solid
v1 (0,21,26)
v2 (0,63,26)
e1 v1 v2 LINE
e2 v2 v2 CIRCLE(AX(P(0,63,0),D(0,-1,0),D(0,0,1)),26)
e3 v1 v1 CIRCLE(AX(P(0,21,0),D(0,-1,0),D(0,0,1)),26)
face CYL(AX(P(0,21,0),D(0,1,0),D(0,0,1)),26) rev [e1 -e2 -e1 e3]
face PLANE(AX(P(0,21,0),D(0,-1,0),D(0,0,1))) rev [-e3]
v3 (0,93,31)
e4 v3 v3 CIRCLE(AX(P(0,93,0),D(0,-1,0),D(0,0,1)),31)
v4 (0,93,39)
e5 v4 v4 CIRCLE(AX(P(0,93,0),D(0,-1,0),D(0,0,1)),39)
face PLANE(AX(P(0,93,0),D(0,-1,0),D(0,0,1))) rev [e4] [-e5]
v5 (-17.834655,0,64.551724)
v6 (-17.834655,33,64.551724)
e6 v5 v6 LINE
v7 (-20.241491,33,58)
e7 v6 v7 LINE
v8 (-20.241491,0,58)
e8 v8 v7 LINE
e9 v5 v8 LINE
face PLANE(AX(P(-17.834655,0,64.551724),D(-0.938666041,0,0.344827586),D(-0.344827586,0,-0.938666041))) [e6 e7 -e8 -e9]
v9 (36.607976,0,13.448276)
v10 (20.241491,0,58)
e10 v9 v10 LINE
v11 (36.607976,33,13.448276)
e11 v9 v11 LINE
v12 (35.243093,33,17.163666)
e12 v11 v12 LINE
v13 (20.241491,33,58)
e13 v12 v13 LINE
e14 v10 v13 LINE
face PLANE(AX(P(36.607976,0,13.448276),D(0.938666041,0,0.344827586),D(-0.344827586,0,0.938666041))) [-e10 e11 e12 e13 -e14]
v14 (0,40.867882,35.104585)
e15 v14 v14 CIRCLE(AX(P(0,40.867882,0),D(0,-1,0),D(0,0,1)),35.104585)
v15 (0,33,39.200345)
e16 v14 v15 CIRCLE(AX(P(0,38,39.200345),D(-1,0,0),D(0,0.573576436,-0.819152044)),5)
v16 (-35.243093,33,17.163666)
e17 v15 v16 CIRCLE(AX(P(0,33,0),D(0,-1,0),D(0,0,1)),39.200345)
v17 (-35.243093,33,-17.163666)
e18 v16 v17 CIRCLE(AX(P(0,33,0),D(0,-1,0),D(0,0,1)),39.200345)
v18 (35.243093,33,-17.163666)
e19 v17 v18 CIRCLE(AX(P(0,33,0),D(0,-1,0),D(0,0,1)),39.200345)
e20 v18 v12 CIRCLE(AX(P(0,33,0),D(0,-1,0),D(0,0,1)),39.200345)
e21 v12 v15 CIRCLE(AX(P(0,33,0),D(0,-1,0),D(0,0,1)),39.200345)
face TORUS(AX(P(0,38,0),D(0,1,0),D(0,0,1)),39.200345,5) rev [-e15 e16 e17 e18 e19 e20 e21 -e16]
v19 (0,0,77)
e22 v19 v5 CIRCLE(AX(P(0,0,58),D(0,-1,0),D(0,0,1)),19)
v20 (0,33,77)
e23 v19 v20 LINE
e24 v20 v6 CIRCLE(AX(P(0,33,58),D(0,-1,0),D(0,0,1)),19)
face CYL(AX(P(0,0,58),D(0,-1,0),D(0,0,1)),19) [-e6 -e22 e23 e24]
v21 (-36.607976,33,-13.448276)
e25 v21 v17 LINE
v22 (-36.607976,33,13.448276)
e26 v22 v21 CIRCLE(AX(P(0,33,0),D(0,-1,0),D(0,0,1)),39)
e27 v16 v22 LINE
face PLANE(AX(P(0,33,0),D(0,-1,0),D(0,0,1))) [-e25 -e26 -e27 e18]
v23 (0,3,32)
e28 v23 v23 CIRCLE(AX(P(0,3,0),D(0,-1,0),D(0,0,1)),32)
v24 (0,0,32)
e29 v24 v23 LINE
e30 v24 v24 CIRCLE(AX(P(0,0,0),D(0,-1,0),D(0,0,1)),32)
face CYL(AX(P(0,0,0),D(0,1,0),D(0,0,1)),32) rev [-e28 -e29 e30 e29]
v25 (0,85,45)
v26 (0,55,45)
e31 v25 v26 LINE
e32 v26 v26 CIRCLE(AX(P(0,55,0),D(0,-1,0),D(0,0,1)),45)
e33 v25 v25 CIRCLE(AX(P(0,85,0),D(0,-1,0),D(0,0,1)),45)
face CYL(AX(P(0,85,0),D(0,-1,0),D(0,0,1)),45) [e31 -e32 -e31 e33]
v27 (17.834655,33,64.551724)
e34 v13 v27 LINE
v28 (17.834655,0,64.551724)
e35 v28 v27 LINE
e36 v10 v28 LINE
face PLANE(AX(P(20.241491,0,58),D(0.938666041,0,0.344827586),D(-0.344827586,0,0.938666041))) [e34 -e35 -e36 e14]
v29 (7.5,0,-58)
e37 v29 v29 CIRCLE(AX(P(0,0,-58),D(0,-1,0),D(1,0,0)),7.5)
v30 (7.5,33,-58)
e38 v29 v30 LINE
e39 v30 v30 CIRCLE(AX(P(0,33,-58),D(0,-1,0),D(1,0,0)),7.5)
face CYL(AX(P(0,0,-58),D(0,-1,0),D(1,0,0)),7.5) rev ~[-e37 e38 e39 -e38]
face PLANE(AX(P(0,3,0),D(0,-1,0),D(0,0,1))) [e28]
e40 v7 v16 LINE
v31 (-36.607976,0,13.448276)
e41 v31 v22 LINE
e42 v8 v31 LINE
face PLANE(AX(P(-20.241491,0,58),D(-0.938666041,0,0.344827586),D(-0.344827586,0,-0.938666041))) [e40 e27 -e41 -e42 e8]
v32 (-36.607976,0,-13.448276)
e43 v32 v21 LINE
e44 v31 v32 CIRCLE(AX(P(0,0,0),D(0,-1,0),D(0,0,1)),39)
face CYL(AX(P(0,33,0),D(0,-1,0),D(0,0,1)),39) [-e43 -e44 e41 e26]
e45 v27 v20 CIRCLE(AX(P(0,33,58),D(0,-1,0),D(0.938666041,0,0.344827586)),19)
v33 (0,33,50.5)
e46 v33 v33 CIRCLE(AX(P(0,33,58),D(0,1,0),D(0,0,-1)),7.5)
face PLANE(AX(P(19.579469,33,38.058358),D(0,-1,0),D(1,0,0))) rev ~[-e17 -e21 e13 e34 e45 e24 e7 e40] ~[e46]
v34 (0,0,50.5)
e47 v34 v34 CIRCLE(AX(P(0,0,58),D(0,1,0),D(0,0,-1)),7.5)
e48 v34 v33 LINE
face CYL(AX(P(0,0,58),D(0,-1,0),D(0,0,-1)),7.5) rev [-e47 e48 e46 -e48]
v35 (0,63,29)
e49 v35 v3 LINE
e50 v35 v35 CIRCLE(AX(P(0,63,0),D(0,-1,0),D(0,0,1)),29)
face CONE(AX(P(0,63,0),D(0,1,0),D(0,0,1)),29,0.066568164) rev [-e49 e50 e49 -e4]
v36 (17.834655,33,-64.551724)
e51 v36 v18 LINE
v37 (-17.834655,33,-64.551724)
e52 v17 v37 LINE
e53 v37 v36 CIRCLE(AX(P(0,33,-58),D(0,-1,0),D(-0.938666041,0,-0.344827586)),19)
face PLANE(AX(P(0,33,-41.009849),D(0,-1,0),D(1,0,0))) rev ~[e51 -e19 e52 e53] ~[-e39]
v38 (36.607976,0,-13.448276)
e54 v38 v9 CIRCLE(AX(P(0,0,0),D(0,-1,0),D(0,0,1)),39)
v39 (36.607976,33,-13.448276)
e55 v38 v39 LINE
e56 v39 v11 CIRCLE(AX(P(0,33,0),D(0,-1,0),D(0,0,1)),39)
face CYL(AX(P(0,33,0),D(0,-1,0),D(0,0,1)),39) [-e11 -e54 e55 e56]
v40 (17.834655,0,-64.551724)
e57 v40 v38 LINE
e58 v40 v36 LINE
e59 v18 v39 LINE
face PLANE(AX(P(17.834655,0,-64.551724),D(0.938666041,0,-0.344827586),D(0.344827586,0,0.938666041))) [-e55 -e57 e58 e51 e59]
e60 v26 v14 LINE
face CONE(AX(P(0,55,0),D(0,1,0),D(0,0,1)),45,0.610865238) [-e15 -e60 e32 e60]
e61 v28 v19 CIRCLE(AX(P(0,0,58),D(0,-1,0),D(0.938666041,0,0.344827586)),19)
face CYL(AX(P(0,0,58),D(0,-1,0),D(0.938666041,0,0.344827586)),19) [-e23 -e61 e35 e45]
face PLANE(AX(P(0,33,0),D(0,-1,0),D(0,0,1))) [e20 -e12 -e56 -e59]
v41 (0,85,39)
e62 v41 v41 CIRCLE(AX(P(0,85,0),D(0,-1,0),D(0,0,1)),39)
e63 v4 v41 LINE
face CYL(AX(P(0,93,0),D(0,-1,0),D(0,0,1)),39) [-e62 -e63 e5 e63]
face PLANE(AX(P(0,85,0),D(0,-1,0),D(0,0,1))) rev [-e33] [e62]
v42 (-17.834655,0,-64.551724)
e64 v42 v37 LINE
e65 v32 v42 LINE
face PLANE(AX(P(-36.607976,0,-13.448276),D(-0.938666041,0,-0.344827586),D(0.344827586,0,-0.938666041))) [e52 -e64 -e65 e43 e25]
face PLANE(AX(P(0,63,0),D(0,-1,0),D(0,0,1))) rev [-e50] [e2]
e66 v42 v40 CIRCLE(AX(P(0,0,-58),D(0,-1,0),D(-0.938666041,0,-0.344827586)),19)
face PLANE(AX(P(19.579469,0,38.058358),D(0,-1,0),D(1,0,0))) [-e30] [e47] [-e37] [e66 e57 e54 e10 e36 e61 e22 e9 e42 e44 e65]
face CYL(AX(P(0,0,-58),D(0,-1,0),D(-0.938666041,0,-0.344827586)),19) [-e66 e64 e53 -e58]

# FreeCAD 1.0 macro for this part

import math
import FreeCAD as App
import Part
import Sketcher
from FreeCAD import Vector
Q = App.Units.Quantity

doc = App.newDocument("Part")
body = doc.addObject("PartDesign::Body", "Body")

# Sketch on YZ plane
sketch1 = body.newObject("Sketcher::SketchObject", "Sketch")
sketch1.AttachmentSupport = (doc.getObject("YZ_Plane"), [""])
sketch1.MapMode = "FlatFace"
sketch1.addGeometry(Part.LineSegment(Vector(3, 0, 0), Vector(21, 0, 0)), False)
sketch1.addGeometry(Part.LineSegment(Vector(21, 0, 0), Vector(21, 26, 0)), False)
sketch1.addGeometry(Part.LineSegment(Vector(21, 26, 0), Vector(63, 26, 0)), False)
sketch1.addGeometry(Part.LineSegment(Vector(63, 26, 0), Vector(63, 29, 0)), False)
sketch1.addGeometry(Part.LineSegment(Vector(63, 29, 0), Vector(93, 31, 0)), False)
sketch1.addGeometry(Part.LineSegment(Vector(93, 31, 0), Vector(93, 39, 0)), False)
sketch1.addGeometry(Part.LineSegment(Vector(93, 39, 0), Vector(85, 39, 0)), False)
sketch1.addGeometry(Part.LineSegment(Vector(85, 39, 0), Vector(85, 45, 0)), False)
sketch1.addGeometry(Part.LineSegment(Vector(85, 45, 0), Vector(55, 45, 0)), False)
sketch1.addGeometry(Part.LineSegment(Vector(55, 45, 0), Vector(40.87, 35.1, 0)), False)
sketch1.addGeometry(Part.ArcOfCircle(Part.Circle(Vector(38, 39.2, 0), Vector(0, 0, 1), 5), math.radians(180), math.radians(305)), False)
sketch1.addGeometry(Part.LineSegment(Vector(33, 39.2, 0), Vector(33, 39, 0)), False)
sketch1.addGeometry(Part.LineSegment(Vector(33, 39, 0), Vector(0, 39, 0)), False)
sketch1.addGeometry(Part.LineSegment(Vector(0, 39, 0), Vector(0, 32, 0)), False)
sketch1.addGeometry(Part.LineSegment(Vector(0, 32, 0), Vector(3, 32, 0)), False)
sketch1.addGeometry(Part.LineSegment(Vector(3, 32, 0), Vector(3, 0, 0)), False)
sketch1.addConstraint(Sketcher.Constraint("Coincident", 0, 2, 1, 1))
sketch1.addConstraint(Sketcher.Constraint("Coincident", 1, 2, 2, 1))
sketch1.addConstraint(Sketcher.Constraint("Coincident", 2, 2, 3, 1))
sketch1.addConstraint(Sketcher.Constraint("Coincident", 3, 2, 4, 1))
sketch1.addConstraint(Sketcher.Constraint("Coincident", 4, 2, 5, 1))
sketch1.addConstraint(Sketcher.Constraint("Coincident", 5, 2, 6, 1))
sketch1.addConstraint(Sketcher.Constraint("Coincident", 6, 2, 7, 1))
sketch1.addConstraint(Sketcher.Constraint("Coincident", 7, 2, 8, 1))
sketch1.addConstraint(Sketcher.Constraint("Coincident", 8, 2, 9, 1))
sketch1.addConstraint(Sketcher.Constraint("Tangent", 9, 2, 10, 2))
sketch1.addConstraint(Sketcher.Constraint("Tangent", 10, 1, 11, 1))
sketch1.addConstraint(Sketcher.Constraint("Coincident", 11, 2, 12, 1))
sketch1.addConstraint(Sketcher.Constraint("Coincident", 12, 2, 13, 1))
sketch1.addConstraint(Sketcher.Constraint("Coincident", 13, 2, 14, 1))
sketch1.addConstraint(Sketcher.Constraint("Coincident", 14, 2, 15, 1))
sketch1.addConstraint(Sketcher.Constraint("Coincident", 15, 2, 0, 1))
sketch1.addConstraint(Sketcher.Constraint("Horizontal", 0))
sketch1.addConstraint(Sketcher.Constraint("Vertical", 1))
sketch1.addConstraint(Sketcher.Constraint("Horizontal", 2))
sketch1.addConstraint(Sketcher.Constraint("Vertical", 3))
sketch1.addConstraint(Sketcher.Constraint("Vertical", 5))
sketch1.addConstraint(Sketcher.Constraint("Horizontal", 6))
sketch1.addConstraint(Sketcher.Constraint("Vertical", 7))
sketch1.addConstraint(Sketcher.Constraint("Horizontal", 8))
sketch1.addConstraint(Sketcher.Constraint("Vertical", 11))
sketch1.addConstraint(Sketcher.Constraint("Horizontal", 12))
sketch1.addConstraint(Sketcher.Constraint("Vertical", 13))
sketch1.addConstraint(Sketcher.Constraint("Horizontal", 14))
sketch1.addConstraint(Sketcher.Constraint("Vertical", 15))
sketch1.addConstraint(Sketcher.Constraint("PointOnObject", 0, 2, -1))
sketch1.addConstraint(Sketcher.Constraint("PointOnObject", 12, 2, -2))
sketch1.addConstraint(Sketcher.Constraint("Horizontal", 6, 2, 11, 2))
sketch1.addConstraint(Sketcher.Constraint("Equal", 14, 3))
sketch1.addConstraint(Sketcher.Constraint("Equal", 6, 5))
sketch1.addConstraint(Sketcher.Constraint("Radius", 10, 5.0))
sketch1.addConstraint(Sketcher.Constraint("DistanceX", 0, 1, 0, 2, 18.0))
sketch1.addConstraint(Sketcher.Constraint("DistanceX", 2, 1, 2, 2, 42.0))
sketch1.addConstraint(Sketcher.Constraint("DistanceX", 6, 2, 6, 1, 8.0))
sketch1.addConstraint(Sketcher.Constraint("DistanceX", 8, 2, 8, 1, 30.0))
sketch1.addConstraint(Sketcher.Constraint("DistanceX", 12, 2, 12, 1, 33.0))
sketch1.addConstraint(Sketcher.Constraint("DistanceX", 14, 1, 14, 2, 3.0))
sketch1.addConstraint(Sketcher.Constraint("DistanceY", 1, 1, 1, 2, 26.0))
sketch1.addConstraint(Sketcher.Constraint("DistanceY", 7, 1, 7, 2, 6.0))
sketch1.addConstraint(Sketcher.Constraint("DistanceY", 13, 2, 13, 1, 7.0))
sketch1.addConstraint(Sketcher.Constraint("DistanceY", 15, 2, 15, 1, 32.0))
sketch1.addConstraint(Sketcher.Constraint("Angle", 9, Q("-145 deg")))
sketch1.addConstraint(Sketcher.Constraint("DistanceX", -1, 1, 4, 2, 93.0))
revolution = body.newObject("PartDesign::Revolution", "Revolution")
revolution.Profile = sketch1
revolution.ReferenceAxis = (sketch1, ["H_Axis"])
revolution.Angle = 360

# Sketch on XZ plane
sketch2 = body.newObject("Sketcher::SketchObject", "Sketch001")
sketch2.AttachmentSupport = (doc.getObject("XZ_Plane"), [""])
sketch2.MapMode = "FlatFace"
sketch2.addGeometry(Part.ArcOfCircle(Part.Circle(Vector(0, 0, 0), Vector(0, 0, 1), 39), math.radians(20), math.radians(90)), False)
sketch2.addGeometry(Part.LineSegment(Vector(37, 13, 0), Vector(20, 58, 0)), False)
sketch2.addGeometry(Part.LineSegment(Vector(20, 58, 0), Vector(18, 65, 0)), False)
sketch2.addGeometry(Part.ArcOfCircle(Part.Circle(Vector(0, 58, 0), Vector(0, 0, 1), 19), math.radians(20), math.radians(90)), False)
sketch2.addGeometry(Part.ArcOfCircle(Part.Circle(Vector(0, 58, 0), Vector(0, 0, 1), 19), math.radians(90), math.radians(160)), False)
sketch2.addGeometry(Part.LineSegment(Vector(-18, 65, 0), Vector(-20, 58, 0)), False)
sketch2.addGeometry(Part.LineSegment(Vector(-20, 58, 0), Vector(-37, 13, 0)), False)
sketch2.addGeometry(Part.ArcOfCircle(Part.Circle(Vector(0, 0, 0), Vector(0, 0, 1), 39), math.radians(90), math.radians(160)), False)
sketch2.addGeometry(Part.Circle(Vector(0, 58, 0), Vector(0, 0, 1), 8), False)
sketch2.addGeometry(Part.ArcOfCircle(Part.Circle(Vector(0, 0, 0), Vector(0, 0, 1), 39), math.radians(-160), math.radians(-20)), False)
sketch2.addGeometry(Part.LineSegment(Vector(-37, -13, 0), Vector(-18, -65, 0)), False)
sketch2.addGeometry(Part.ArcOfCircle(Part.Circle(Vector(0, -58, 0), Vector(0, 0, 1), 19), math.radians(-160), math.radians(-20)), False)
sketch2.addGeometry(Part.LineSegment(Vector(18, -65, 0), Vector(37, -13, 0)), False)
sketch2.addGeometry(Part.Circle(Vector(0, -58, 0), Vector(0, 0, 1), 8), False)
sketch2.addConstraint(Sketcher.Constraint("Tangent", 0, 1, 1, 1))
sketch2.addConstraint(Sketcher.Constraint("Coincident", 1, 2, 2, 1))
sketch2.addConstraint(Sketcher.Constraint("Tangent", 2, 2, 3, 1))
sketch2.addConstraint(Sketcher.Constraint("Tangent", 3, 2, 4, 1))
sketch2.addConstraint(Sketcher.Constraint("Tangent", 4, 2, 5, 1))
sketch2.addConstraint(Sketcher.Constraint("Coincident", 5, 2, 6, 1))
sketch2.addConstraint(Sketcher.Constraint("Tangent", 6, 2, 7, 2))
sketch2.addConstraint(Sketcher.Constraint("Tangent", 7, 1, 0, 2))
sketch2.addConstraint(Sketcher.Constraint("Tangent", 9, 1, 10, 1))
sketch2.addConstraint(Sketcher.Constraint("Tangent", 10, 2, 11, 1))
sketch2.addConstraint(Sketcher.Constraint("Tangent", 11, 2, 12, 1))
sketch2.addConstraint(Sketcher.Constraint("Tangent", 12, 2, 9, 2))
sketch2.addConstraint(Sketcher.Constraint("Coincident", 0, 3, -1, 1))
sketch2.addConstraint(Sketcher.Constraint("Coincident", 9, 3, -1, 1))
sketch2.addConstraint(Sketcher.Constraint("Coincident", 8, 3, 3, 3))
sketch2.addConstraint(Sketcher.Constraint("Coincident", 13, 3, 11, 3))
sketch2.addConstraint(Sketcher.Constraint("Equal", 3, 4))
sketch2.addConstraint(Sketcher.Constraint("Equal", 0, 7))
sketch2.addConstraint(Sketcher.Constraint("Equal", 7, 9))
sketch2.addConstraint(Sketcher.Constraint("Equal", 4, 11))
sketch2.addConstraint(Sketcher.Constraint("Equal", 8, 13))
sketch2.addConstraint(Sketcher.Constraint("Symmetric", 3, 3, 11, 3, -1, 1))
sketch2.addConstraint(Sketcher.Constraint("Symmetric", 2, 2, 4, 2, -2))
sketch2.addConstraint(Sketcher.Constraint("PointOnObject", 3, 2, -2))
sketch2.addConstraint(Sketcher.Constraint("PointOnObject", 7, 1, -2))
sketch2.addConstraint(Sketcher.Constraint("Parallel", 1, 2))
sketch2.addConstraint(Sketcher.Constraint("Horizontal", 8, 3, 1, 2))
sketch2.addConstraint(Sketcher.Constraint("Horizontal", 1, 2, 5, 2))
sketch2.addConstraint(Sketcher.Constraint("Diameter", 8, 15.0))
sketch2.addConstraint(Sketcher.Constraint("Radius", 0, 39.0))
sketch2.addConstraint(Sketcher.Constraint("Radius", 3, 19.0))
sketch2.addConstraint(Sketcher.Constraint("DistanceY", -1, 1, 3, 3, 58.0))
pad1 = body.newObject("PartDesign::Pad", "Pad")
pad1.Profile = sketch2
pad1.Length = 33
pad1.Reversed = True

doc.recompute()
